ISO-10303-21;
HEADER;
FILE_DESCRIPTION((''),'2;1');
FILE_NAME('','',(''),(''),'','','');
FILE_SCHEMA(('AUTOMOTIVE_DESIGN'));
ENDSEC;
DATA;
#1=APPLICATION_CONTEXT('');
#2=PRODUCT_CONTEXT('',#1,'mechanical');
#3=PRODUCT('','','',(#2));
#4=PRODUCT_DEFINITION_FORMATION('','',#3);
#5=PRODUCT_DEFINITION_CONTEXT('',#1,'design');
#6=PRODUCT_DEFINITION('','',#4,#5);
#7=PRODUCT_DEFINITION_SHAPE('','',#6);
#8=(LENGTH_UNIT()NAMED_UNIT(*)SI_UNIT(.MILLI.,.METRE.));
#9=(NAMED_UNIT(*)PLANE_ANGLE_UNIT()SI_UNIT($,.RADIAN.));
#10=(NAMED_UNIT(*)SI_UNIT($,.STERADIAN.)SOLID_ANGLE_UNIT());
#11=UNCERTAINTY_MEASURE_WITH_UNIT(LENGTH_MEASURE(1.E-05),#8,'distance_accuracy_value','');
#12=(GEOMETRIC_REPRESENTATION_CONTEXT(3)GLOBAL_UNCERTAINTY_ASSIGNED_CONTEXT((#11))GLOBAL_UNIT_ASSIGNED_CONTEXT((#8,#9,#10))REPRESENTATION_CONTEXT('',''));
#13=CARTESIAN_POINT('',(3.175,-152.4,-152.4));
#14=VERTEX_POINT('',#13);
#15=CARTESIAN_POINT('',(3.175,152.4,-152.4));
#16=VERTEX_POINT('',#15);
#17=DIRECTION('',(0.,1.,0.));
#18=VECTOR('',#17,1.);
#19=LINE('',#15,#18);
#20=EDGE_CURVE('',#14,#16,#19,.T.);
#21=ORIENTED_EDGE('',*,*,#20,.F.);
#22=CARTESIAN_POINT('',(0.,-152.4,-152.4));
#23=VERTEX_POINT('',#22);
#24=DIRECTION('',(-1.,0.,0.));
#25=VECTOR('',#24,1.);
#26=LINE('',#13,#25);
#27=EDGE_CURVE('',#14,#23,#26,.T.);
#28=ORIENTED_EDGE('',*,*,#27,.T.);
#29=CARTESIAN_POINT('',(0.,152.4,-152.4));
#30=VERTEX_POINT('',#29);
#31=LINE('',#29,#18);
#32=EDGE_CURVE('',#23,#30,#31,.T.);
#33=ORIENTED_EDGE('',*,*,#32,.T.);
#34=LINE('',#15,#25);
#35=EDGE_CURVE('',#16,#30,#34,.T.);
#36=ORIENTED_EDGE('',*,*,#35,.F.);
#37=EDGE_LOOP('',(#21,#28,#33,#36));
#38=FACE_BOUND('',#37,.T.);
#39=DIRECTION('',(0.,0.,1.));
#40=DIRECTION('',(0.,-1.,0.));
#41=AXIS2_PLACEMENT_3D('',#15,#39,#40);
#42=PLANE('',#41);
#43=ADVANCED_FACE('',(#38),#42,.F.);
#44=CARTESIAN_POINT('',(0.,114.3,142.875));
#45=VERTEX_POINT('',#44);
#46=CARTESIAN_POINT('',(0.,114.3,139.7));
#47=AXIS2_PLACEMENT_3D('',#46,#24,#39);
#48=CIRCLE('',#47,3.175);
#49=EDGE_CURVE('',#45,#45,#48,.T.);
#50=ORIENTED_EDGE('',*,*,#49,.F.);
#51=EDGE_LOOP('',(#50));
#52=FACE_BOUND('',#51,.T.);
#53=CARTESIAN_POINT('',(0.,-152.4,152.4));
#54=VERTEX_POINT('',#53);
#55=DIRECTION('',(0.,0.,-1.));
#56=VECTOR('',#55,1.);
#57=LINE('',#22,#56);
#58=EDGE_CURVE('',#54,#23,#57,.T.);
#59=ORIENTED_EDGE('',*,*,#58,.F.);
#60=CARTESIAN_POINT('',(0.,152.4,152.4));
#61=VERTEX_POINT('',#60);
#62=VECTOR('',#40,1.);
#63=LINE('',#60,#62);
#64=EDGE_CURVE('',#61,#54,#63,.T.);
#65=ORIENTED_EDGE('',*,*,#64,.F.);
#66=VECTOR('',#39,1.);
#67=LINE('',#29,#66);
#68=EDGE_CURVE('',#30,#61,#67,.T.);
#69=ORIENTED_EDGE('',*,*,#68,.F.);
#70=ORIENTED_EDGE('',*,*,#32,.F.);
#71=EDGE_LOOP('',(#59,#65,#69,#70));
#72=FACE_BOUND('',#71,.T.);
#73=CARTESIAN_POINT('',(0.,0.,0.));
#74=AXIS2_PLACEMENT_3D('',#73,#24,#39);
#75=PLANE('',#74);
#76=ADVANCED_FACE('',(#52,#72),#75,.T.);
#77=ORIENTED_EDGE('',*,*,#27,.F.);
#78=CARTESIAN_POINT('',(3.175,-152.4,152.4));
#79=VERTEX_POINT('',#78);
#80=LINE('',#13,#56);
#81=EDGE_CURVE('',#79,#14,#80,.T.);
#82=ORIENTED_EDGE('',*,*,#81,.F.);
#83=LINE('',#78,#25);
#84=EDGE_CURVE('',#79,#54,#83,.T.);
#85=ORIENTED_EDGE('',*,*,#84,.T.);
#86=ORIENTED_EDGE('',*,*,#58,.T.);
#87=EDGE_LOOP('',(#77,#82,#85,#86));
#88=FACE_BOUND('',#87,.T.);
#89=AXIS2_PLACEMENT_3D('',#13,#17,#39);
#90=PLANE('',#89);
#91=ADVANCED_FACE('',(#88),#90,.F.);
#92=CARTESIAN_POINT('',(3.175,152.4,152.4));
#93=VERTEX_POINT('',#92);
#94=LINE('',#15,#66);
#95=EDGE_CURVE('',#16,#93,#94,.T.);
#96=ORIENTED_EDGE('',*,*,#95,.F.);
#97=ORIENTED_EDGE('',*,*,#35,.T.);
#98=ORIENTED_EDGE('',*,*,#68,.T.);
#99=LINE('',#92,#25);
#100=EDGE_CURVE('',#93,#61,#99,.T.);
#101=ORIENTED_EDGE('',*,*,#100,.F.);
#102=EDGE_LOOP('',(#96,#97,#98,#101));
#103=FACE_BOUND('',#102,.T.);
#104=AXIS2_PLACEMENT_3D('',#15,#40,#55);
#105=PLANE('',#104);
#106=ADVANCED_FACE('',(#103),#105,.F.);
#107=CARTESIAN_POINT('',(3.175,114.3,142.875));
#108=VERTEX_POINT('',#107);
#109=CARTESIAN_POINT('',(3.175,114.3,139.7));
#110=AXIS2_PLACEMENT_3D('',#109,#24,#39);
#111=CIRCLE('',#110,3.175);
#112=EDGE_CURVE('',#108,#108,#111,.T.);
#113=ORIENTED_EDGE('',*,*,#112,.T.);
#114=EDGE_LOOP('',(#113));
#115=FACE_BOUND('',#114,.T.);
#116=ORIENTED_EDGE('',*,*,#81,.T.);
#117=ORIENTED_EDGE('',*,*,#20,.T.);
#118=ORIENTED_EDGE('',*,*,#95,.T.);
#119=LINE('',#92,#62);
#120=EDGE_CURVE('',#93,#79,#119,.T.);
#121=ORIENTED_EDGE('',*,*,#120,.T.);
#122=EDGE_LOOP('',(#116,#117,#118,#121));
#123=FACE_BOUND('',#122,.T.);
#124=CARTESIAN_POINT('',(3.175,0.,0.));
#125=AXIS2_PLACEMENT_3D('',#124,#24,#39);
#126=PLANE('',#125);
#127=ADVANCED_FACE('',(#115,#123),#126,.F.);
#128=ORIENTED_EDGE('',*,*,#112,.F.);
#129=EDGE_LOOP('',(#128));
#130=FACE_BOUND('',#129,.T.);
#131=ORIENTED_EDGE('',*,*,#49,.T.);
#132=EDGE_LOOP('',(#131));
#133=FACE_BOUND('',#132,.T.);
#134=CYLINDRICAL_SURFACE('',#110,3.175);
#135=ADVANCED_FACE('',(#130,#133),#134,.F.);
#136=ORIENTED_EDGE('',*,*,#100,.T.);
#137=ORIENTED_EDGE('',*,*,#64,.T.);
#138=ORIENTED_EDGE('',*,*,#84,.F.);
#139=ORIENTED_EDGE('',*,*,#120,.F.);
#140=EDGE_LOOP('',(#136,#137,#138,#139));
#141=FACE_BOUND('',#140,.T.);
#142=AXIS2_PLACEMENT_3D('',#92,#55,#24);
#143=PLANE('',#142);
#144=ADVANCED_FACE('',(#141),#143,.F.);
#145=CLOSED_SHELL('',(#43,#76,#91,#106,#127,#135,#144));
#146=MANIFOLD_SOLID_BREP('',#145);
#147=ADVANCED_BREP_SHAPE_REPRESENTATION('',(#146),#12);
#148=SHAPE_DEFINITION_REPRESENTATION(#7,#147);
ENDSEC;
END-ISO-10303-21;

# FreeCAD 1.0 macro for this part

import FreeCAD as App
import Part
import Sketcher

V = App.Vector
Q = App.Units.Quantity

doc = App.newDocument("Part")
params = doc.addObject("Spreadsheet::Sheet", "Params")
for row, (alias, value) in enumerate([
    ("sketch1_width", "12 in"),
    ("pad1_length", "0.125 in"),
    ("sketch2_diameter", "0.25 in"),
], start=1):
    params.set(f"A{row}", alias)
    params.set(f"B{row}", "=" + value)
    params.setAlias(f"B{row}", alias)

body = doc.addObject("PartDesign::Body", "Body")

sketch1 = body.newObject("Sketcher::SketchObject", "Sketch")
sketch1.AttachmentSupport = (doc.getObject("YZ_Plane"), [""])
sketch1.MapMode = "FlatFace"
sketch1.addGeometry([
    Part.LineSegment(V(152, 152, 0), V(-152, 152, 0)),
    Part.LineSegment(V(-152, 152, 0), V(-152, -152, 0)),
    Part.LineSegment(V(-152, -152, 0), V(152, -152, 0)),
    Part.LineSegment(V(152, -152, 0), V(152, 152, 0)),
], False)
sketch1.addConstraint([
    Sketcher.Constraint("Coincident", 0, 2, 1, 1),
    Sketcher.Constraint("Coincident", 1, 2, 2, 1),
    Sketcher.Constraint("Coincident", 2, 2, 3, 1),
    Sketcher.Constraint("Coincident", 3, 2, 0, 1),
    Sketcher.Constraint("Horizontal", 0),
    Sketcher.Constraint("Vertical", 1),
    Sketcher.Constraint("Horizontal", 2),
    Sketcher.Constraint("Vertical", 3),
    Sketcher.Constraint("Symmetric", 0, 2, 2, 2, -1, 1),
    Sketcher.Constraint("Equal", 2, 1),
    Sketcher.Constraint("DistanceX", 0, 2, 0, 1, Q("12 in")),
])
sketch1.setExpression("Constraints[10]", "Params.sketch1_width")
pad1 = body.newObject("PartDesign::Pad", "Pad")
pad1.Profile = sketch1
pad1.setExpression("Length", "Params.pad1_length")

sketch2 = body.newObject("Sketcher::SketchObject", "Sketch001")
sketch2.AttachmentSupport = (doc.getObject("YZ_Plane"), [""])
sketch2.MapMode = "FlatFace"
sketch2.addGeometry(Part.Circle(V(114.3, 139.7, 0), V(0, 0, 1), 3.2), False)
sketch2.addConstraint([
    Sketcher.Constraint("Diameter", 0, Q("0.25 in")),
    Sketcher.Constraint("DistanceX", -1, 1, 0, 3, Q("4.5 in")),
    Sketcher.Constraint("DistanceY", -1, 1, 0, 3, Q("5.5 in")),
])
sketch2.setExpression("Constraints[0]", "Params.sketch2_diameter")
pocket1 = body.newObject("PartDesign::Pocket", "Pocket")
pocket1.Profile = sketch2
pocket1.Type = "ThroughAll"
pocket1.Reversed = True

doc.recompute()
